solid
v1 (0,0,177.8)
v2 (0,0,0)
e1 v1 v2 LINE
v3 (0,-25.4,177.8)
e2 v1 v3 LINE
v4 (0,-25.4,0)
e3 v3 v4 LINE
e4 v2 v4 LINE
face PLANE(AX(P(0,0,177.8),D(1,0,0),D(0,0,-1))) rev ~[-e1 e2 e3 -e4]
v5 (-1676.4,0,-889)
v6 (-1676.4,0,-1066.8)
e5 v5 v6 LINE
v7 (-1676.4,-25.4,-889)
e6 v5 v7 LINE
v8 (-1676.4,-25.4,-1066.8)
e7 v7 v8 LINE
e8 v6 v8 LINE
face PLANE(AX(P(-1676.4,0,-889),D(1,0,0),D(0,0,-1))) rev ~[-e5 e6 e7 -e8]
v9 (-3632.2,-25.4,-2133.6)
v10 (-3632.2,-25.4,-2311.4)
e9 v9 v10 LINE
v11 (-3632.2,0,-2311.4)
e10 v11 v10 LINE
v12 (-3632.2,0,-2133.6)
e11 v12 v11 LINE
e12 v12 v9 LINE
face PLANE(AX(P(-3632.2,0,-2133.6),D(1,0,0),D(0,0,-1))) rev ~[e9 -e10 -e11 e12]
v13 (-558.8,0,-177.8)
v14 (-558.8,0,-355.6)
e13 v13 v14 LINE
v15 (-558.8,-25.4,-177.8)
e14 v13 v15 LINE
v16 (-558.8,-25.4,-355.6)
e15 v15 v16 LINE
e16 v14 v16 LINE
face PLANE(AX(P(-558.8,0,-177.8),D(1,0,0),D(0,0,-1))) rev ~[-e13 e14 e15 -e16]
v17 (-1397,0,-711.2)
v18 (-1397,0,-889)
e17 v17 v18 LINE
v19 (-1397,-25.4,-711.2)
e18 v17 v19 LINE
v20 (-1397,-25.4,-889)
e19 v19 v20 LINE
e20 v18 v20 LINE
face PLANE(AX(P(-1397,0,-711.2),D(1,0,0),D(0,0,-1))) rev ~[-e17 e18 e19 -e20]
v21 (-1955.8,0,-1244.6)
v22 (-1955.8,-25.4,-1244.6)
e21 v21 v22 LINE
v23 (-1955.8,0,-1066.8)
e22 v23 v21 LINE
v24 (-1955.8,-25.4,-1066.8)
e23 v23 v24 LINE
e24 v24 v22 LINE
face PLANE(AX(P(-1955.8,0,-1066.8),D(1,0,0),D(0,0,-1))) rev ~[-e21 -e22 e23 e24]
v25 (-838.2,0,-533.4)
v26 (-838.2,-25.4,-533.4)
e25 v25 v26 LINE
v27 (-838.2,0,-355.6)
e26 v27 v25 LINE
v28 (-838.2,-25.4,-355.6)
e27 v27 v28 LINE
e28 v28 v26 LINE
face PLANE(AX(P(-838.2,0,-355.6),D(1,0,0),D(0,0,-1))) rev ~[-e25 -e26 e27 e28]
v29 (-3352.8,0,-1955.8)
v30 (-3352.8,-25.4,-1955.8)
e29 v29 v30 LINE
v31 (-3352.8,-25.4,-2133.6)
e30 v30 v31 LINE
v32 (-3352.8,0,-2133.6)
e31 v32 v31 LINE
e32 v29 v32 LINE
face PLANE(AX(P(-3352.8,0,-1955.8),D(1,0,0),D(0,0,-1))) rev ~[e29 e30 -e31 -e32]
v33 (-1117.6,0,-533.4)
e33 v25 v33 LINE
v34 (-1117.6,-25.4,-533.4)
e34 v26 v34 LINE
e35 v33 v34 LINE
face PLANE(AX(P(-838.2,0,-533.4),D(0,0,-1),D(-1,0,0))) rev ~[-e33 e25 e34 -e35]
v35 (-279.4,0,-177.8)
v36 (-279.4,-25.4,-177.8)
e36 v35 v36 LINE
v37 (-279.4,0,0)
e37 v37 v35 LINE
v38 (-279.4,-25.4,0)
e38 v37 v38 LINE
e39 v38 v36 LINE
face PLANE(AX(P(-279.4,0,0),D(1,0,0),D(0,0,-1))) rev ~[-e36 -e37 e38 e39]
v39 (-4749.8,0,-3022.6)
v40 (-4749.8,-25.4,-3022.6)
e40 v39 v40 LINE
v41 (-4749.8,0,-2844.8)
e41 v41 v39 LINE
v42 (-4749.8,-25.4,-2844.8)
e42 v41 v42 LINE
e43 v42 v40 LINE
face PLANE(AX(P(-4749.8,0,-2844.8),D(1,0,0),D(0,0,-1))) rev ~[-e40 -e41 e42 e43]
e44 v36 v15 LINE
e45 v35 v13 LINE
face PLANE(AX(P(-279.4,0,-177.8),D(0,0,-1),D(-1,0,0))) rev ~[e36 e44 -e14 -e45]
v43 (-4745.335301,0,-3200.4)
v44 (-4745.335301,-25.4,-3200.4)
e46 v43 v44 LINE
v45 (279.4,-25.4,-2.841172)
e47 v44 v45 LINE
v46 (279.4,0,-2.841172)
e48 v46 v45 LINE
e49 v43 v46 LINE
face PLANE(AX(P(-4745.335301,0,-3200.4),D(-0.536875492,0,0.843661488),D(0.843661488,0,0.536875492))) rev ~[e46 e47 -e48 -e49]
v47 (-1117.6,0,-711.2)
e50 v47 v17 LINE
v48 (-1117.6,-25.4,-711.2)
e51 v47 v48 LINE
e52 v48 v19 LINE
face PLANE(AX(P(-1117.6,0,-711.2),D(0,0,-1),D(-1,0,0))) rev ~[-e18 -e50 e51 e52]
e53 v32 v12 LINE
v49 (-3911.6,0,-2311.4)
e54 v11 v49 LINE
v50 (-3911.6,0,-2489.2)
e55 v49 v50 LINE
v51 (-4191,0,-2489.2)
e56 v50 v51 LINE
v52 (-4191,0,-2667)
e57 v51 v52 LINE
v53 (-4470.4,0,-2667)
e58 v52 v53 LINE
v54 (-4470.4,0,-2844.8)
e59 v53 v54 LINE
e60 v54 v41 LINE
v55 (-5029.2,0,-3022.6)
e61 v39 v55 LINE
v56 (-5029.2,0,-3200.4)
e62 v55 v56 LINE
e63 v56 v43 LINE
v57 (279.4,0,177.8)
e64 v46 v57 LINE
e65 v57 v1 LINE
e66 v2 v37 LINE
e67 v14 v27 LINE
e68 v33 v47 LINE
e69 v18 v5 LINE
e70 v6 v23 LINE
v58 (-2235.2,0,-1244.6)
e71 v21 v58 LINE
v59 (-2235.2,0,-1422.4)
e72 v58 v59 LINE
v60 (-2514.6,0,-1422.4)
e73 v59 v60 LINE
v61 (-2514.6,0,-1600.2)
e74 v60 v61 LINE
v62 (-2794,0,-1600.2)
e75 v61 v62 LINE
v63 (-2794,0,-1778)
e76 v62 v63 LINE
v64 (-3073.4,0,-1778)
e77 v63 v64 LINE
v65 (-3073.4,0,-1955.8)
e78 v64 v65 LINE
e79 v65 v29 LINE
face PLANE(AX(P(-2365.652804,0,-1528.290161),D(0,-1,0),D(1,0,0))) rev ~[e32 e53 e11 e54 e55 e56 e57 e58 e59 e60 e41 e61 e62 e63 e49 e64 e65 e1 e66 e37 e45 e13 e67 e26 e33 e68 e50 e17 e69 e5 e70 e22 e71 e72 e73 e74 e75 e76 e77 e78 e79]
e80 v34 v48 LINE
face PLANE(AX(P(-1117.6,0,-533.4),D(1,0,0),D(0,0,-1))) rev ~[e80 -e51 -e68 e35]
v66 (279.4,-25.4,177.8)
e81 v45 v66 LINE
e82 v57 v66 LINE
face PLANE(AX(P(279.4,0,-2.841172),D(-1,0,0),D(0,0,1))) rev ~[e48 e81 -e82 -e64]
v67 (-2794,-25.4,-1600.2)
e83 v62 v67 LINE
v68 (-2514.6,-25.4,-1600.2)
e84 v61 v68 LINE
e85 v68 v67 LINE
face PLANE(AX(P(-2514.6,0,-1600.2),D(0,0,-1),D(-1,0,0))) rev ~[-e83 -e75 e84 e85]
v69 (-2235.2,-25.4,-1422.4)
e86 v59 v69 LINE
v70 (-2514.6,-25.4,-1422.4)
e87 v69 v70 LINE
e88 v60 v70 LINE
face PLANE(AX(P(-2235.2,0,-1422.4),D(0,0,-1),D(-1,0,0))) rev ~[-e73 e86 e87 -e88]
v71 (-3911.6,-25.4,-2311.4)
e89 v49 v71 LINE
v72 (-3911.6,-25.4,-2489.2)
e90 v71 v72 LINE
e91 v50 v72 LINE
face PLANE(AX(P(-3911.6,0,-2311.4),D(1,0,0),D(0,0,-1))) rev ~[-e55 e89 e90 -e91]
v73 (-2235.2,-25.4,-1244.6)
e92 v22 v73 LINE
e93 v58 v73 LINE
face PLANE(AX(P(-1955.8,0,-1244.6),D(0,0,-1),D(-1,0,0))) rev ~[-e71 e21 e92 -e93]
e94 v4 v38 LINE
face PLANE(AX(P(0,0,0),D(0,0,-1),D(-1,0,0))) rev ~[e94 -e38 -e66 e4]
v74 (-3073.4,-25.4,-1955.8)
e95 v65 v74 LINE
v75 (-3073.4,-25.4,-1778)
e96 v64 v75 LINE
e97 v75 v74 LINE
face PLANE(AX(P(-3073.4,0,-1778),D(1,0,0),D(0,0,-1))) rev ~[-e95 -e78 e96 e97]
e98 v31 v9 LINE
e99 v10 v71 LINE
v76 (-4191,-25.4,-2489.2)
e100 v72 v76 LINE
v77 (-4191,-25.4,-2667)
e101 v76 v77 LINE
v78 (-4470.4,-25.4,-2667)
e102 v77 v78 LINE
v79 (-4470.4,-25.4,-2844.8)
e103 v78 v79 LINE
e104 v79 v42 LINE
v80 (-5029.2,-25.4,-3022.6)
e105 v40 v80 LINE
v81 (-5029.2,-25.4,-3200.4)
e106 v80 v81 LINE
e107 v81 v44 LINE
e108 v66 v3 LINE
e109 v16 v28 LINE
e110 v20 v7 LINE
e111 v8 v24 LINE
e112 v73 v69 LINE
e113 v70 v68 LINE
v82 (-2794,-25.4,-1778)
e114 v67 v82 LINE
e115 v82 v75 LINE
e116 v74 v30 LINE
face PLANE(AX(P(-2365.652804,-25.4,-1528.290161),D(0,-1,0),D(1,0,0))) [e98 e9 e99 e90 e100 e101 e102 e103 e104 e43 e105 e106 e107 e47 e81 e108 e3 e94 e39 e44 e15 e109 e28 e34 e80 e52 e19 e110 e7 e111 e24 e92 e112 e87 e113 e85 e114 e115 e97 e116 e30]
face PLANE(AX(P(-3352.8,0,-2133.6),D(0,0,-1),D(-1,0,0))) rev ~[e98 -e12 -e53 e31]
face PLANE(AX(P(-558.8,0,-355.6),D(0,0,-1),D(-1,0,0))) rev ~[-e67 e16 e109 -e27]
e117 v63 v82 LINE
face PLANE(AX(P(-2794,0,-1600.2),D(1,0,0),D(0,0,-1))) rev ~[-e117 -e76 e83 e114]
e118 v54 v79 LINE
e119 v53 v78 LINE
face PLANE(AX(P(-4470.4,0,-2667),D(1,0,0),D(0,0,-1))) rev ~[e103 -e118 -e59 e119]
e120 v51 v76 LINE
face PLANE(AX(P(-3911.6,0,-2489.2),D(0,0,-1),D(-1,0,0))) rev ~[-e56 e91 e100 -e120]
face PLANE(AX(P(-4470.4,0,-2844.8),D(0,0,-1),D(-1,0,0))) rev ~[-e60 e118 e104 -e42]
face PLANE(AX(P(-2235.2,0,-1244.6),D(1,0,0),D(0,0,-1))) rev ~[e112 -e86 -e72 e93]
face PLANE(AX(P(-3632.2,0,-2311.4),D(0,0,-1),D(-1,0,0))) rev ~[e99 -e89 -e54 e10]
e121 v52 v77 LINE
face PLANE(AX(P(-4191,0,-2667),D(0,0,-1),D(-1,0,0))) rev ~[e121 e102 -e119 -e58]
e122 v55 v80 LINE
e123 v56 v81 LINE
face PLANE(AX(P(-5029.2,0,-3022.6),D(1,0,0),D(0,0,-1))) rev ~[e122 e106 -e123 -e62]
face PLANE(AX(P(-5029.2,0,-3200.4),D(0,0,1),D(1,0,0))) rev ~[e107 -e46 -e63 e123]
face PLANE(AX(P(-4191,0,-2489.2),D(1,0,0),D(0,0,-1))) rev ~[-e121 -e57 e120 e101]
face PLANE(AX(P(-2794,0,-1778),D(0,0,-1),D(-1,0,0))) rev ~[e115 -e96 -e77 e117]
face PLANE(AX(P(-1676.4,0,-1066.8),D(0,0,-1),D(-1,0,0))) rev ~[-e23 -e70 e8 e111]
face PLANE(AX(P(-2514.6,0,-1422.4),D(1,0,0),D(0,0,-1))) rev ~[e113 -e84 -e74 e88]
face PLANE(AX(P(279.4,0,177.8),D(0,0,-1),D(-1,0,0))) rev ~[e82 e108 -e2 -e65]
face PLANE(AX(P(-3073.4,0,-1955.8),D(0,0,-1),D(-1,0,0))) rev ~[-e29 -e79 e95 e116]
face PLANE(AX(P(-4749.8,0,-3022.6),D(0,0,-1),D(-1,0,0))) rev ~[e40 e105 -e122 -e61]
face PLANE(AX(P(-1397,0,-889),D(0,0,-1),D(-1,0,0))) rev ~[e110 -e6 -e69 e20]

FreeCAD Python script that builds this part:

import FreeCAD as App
import Part
import Sketcher

V = App.Vector
Q = App.Units.Quantity

doc = App.newDocument("Part")
body = doc.addObject("PartDesign::Body", "Body")

# Sketch on XZ plane
sketch1 = body.newObject("Sketcher::SketchObject", "Sketch")
sketch1.AttachmentSupport = (doc.getObject("XZ_Plane"), [""])
sketch1.MapMode = "FlatFace"
sketch1.addGeometry(Part.LineSegment(V(0, 178, 0), V(0, 0, 0)), False)
sketch1.addGeometry(Part.LineSegment(V(0, 0, 0), V(-279, 0, 0)), False)
sketch1.addGeometry(Part.LineSegment(V(-279, 0, 0), V(-279, -178, 0)), False)
sketch1.addGeometry(Part.LineSegment(V(-279, -178, 0), V(-559, -178, 0)), False)
sketch1.addGeometry(Part.LineSegment(V(-559, -178, 0), V(-559, -356, 0)), False)
sketch1.addGeometry(Part.LineSegment(V(-559, -356, 0), V(-838, -356, 0)), False)
sketch1.addGeometry(Part.LineSegment(V(-838, -356, 0), V(-838, -533, 0)), False)
sketch1.addGeometry(Part.LineSegment(V(-838, -533, 0), V(-1118, -533, 0)), False)
sketch1.addGeometry(Part.LineSegment(V(-1118, -533, 0), V(-1118, -711, 0)), False)
sketch1.addGeometry(Part.LineSegment(V(-1118, -711, 0), V(-1397, -711, 0)), False)
sketch1.addGeometry(Part.LineSegment(V(-1397, -711, 0), V(-1397, -889, 0)), False)
sketch1.addGeometry(Part.LineSegment(V(-1397, -889, 0), V(-1676, -889, 0)), False)
sketch1.addGeometry(Part.LineSegment(V(-1676, -889, 0), V(-1676, -1067, 0)), False)
sketch1.addGeometry(Part.LineSegment(V(-1676, -1067, 0), V(-1956, -1067, 0)), False)
sketch1.addGeometry(Part.LineSegment(V(-1956, -1067, 0), V(-1956, -1245, 0)), False)
sketch1.addGeometry(Part.LineSegment(V(-1956, -1245, 0), V(-2235, -1245, 0)), False)
sketch1.addGeometry(Part.LineSegment(V(-2235, -1245, 0), V(-2235, -1422, 0)), False)
sketch1.addGeometry(Part.LineSegment(V(-2235, -1422, 0), V(-2515, -1422, 0)), False)
sketch1.addGeometry(Part.LineSegment(V(-2515, -1422, 0), V(-2515, -1600, 0)), False)
sketch1.addGeometry(Part.LineSegment(V(-2515, -1600, 0), V(-2794, -1600, 0)), False)
sketch1.addGeometry(Part.LineSegment(V(-2794, -1600, 0), V(-2794, -1778, 0)), False)
sketch1.addGeometry(Part.LineSegment(V(-2794, -1778, 0), V(-3073, -1778, 0)), False)
sketch1.addGeometry(Part.LineSegment(V(-3073, -1778, 0), V(-3073, -1956, 0)), False)
sketch1.addGeometry(Part.LineSegment(V(-3073, -1956, 0), V(-3353, -1956, 0)), False)
sketch1.addGeometry(Part.LineSegment(V(-3353, -1956, 0), V(-3353, -2134, 0)), False)
sketch1.addGeometry(Part.LineSegment(V(-3353, -2134, 0), V(-3632, -2134, 0)), False)
sketch1.addGeometry(Part.LineSegment(V(-3632, -2134, 0), V(-3632, -2311, 0)), False)
sketch1.addGeometry(Part.LineSegment(V(-3632, -2311, 0), V(-3912, -2311, 0)), False)
sketch1.addGeometry(Part.LineSegment(V(-3912, -2311, 0), V(-3912, -2489, 0)), False)
sketch1.addGeometry(Part.LineSegment(V(-3912, -2489, 0), V(-4191, -2489, 0)), False)
sketch1.addGeometry(Part.LineSegment(V(-4191, -2489, 0), V(-4191, -2667, 0)), False)
sketch1.addGeometry(Part.LineSegment(V(-4191, -2667, 0), V(-4470, -2667, 0)), False)
sketch1.addGeometry(Part.LineSegment(V(-4470, -2667, 0), V(-4470, -2845, 0)), False)
sketch1.addGeometry(Part.LineSegment(V(-4470, -2845, 0), V(-4750, -2845, 0)), False)
sketch1.addGeometry(Part.LineSegment(V(-4750, -2845, 0), V(-4750, -3023, 0)), False)
sketch1.addGeometry(Part.LineSegment(V(-4750, -3023, 0), V(-5029, -3023, 0)), False)
sketch1.addGeometry(Part.LineSegment(V(-5029, -3023, 0), V(-5029, -3200, 0)), False)
sketch1.addGeometry(Part.LineSegment(V(-5029, -3200, 0), V(-4745, -3200, 0)), False)
sketch1.addGeometry(Part.LineSegment(V(-4745, -3200, 0), V(279, -3, 0)), False)
sketch1.addGeometry(Part.LineSegment(V(279, -3, 0), V(279, 178, 0)), False)
sketch1.addGeometry(Part.LineSegment(V(279, 178, 0), V(0, 178, 0)), False)
sketch1.addConstraint(Sketcher.Constraint("Coincident", 0, 2, 1, 1))
sketch1.addConstraint(Sketcher.Constraint("Coincident", 1, 2, 2, 1))
sketch1.addConstraint(Sketcher.Constraint("Coincident", 2, 2, 3, 1))
sketch1.addConstraint(Sketcher.Constraint("Coincident", 3, 2, 4, 1))
sketch1.addConstraint(Sketcher.Constraint("Coincident", 4, 2, 5, 1))
sketch1.addConstraint(Sketcher.Constraint("Coincident", 5, 2, 6, 1))
sketch1.addConstraint(Sketcher.Constraint("Coincident", 6, 2, 7, 1))
sketch1.addConstraint(Sketcher.Constraint("Coincident", 7, 2, 8, 1))
sketch1.addConstraint(Sketcher.Constraint("Coincident", 8, 2, 9, 1))
sketch1.addConstraint(Sketcher.Constraint("Coincident", 9, 2, 10, 1))
sketch1.addConstraint(Sketcher.Constraint("Coincident", 10, 2, 11, 1))
sketch1.addConstraint(Sketcher.Constraint("Coincident", 11, 2, 12, 1))
sketch1.addConstraint(Sketcher.Constraint("Coincident", 12, 2, 13, 1))
sketch1.addConstraint(Sketcher.Constraint("Coincident", 13, 2, 14, 1))
sketch1.addConstraint(Sketcher.Constraint("Coincident", 14, 2, 15, 1))
sketch1.addConstraint(Sketcher.Constraint("Coincident", 15, 2, 16, 1))
sketch1.addConstraint(Sketcher.Constraint("Coincident", 16, 2, 17, 1))
sketch1.addConstraint(Sketcher.Constraint("Coincident", 17, 2, 18, 1))
sketch1.addConstraint(Sketcher.Constraint("Coincident", 18, 2, 19, 1))
sketch1.addConstraint(Sketcher.Constraint("Coincident", 19, 2, 20, 1))
sketch1.addConstraint(Sketcher.Constraint("Coincident", 20, 2, 21, 1))
sketch1.addConstraint(Sketcher.Constraint("Coincident", 21, 2, 22, 1))
sketch1.addConstraint(Sketcher.Constraint("Coincident", 22, 2, 23, 1))
sketch1.addConstraint(Sketcher.Constraint("Coincident", 23, 2, 24, 1))
sketch1.addConstraint(Sketcher.Constraint("Coincident", 24, 2, 25, 1))
sketch1.addConstraint(Sketcher.Constraint("Coincident", 25, 2, 26, 1))
sketch1.addConstraint(Sketcher.Constraint("Coincident", 26, 2, 27, 1))
sketch1.addConstraint(Sketcher.Constraint("Coincident", 27, 2, 28, 1))
sketch1.addConstraint(Sketcher.Constraint("Coincident", 28, 2, 29, 1))
sketch1.addConstraint(Sketcher.Constraint("Coincident", 29, 2, 30, 1))
sketch1.addConstraint(Sketcher.Constraint("Coincident", 30, 2, 31, 1))
sketch1.addConstraint(Sketcher.Constraint("Coincident", 31, 2, 32, 1))
sketch1.addConstraint(Sketcher.Constraint("Coincident", 32, 2, 33, 1))
sketch1.addConstraint(Sketcher.Constraint("Coincident", 33, 2, 34, 1))
sketch1.addConstraint(Sketcher.Constraint("Coincident", 34, 2, 35, 1))
sketch1.addConstraint(Sketcher.Constraint("Coincident", 35, 2, 36, 1))
sketch1.addConstraint(Sketcher.Constraint("Coincident", 36, 2, 37, 1))
sketch1.addConstraint(Sketcher.Constraint("Coincident", 37, 2, 38, 1))
sketch1.addConstraint(Sketcher.Constraint("Coincident", 38, 2, 39, 1))
sketch1.addConstraint(Sketcher.Constraint("Coincident", 39, 2, 40, 1))
sketch1.addConstraint(Sketcher.Constraint("Coincident", 40, 2, 0, 1))
sketch1.addConstraint(Sketcher.Constraint("Vertical", 0))
sketch1.addConstraint(Sketcher.Constraint("Horizontal", 1))
sketch1.addConstraint(Sketcher.Constraint("Vertical", 2))
sketch1.addConstraint(Sketcher.Constraint("Horizontal", 3))
sketch1.addConstraint(Sketcher.Constraint("Vertical", 4))
sketch1.addConstraint(Sketcher.Constraint("Horizontal", 5))
sketch1.addConstraint(Sketcher.Constraint("Vertical", 6))
sketch1.addConstraint(Sketcher.Constraint("Horizontal", 7))
sketch1.addConstraint(Sketcher.Constraint("Vertical", 8))
sketch1.addConstraint(Sketcher.Constraint("Horizontal", 9))
sketch1.addConstraint(Sketcher.Constraint("Vertical", 10))
sketch1.addConstraint(Sketcher.Constraint("Horizontal", 11))
sketch1.addConstraint(Sketcher.Constraint("Vertical", 12))
sketch1.addConstraint(Sketcher.Constraint("Horizontal", 13))
sketch1.addConstraint(Sketcher.Constraint("Vertical", 14))
sketch1.addConstraint(Sketcher.Constraint("Horizontal", 15))
sketch1.addConstraint(Sketcher.Constraint("Vertical", 16))
sketch1.addConstraint(Sketcher.Constraint("Horizontal", 17))
sketch1.addConstraint(Sketcher.Constraint("Vertical", 18))
sketch1.addConstraint(Sketcher.Constraint("Horizontal", 19))
sketch1.addConstraint(Sketcher.Constraint("Vertical", 20))
sketch1.addConstraint(Sketcher.Constraint("Horizontal", 21))
sketch1.addConstraint(Sketcher.Constraint("Vertical", 22))
sketch1.addConstraint(Sketcher.Constraint("Horizontal", 23))
sketch1.addConstraint(Sketcher.Constraint("Vertical", 24))
sketch1.addConstraint(Sketcher.Constraint("Horizontal", 25))
sketch1.addConstraint(Sketcher.Constraint("Vertical", 26))
sketch1.addConstraint(Sketcher.Constraint("Horizontal", 27))
sketch1.addConstraint(Sketcher.Constraint("Vertical", 28))
sketch1.addConstraint(Sketcher.Constraint("Horizontal", 29))
sketch1.addConstraint(Sketcher.Constraint("Vertical", 30))
sketch1.addConstraint(Sketcher.Constraint("Horizontal", 31))
sketch1.addConstraint(Sketcher.Constraint("Vertical", 32))
sketch1.addConstraint(Sketcher.Constraint("Horizontal", 33))
sketch1.addConstraint(Sketcher.Constraint("Vertical", 34))
sketch1.addConstraint(Sketcher.Constraint("Horizontal", 35))
sketch1.addConstraint(Sketcher.Constraint("Vertical", 36))
sketch1.addConstraint(Sketcher.Constraint("Horizontal", 37))
sketch1.addConstraint(Sketcher.Constraint("Vertical", 39))
sketch1.addConstraint(Sketcher.Constraint("Horizontal", 40))
sketch1.addConstraint(Sketcher.Constraint("Coincident", 0, 2, -1, 1))
sketch1.addConstraint(Sketcher.Constraint("Symmetric", 2, 2, 39, 2, -1, 1))
sketch1.addConstraint(Sketcher.Constraint("Equal", 1, 3))
sketch1.addConstraint(Sketcher.Constraint("Equal", 3, 5))
sketch1.addConstraint(Sketcher.Constraint("Equal", 5, 7))
sketch1.addConstraint(Sketcher.Constraint("Equal", 7, 9))
sketch1.addConstraint(Sketcher.Constraint("Equal", 9, 11))
sketch1.addConstraint(Sketcher.Constraint("Equal", 11, 13))
sketch1.addConstraint(Sketcher.Constraint("Equal", 13, 15))
sketch1.addConstraint(Sketcher.Constraint("Equal", 15, 17))
sketch1.addConstraint(Sketcher.Constraint("Equal", 17, 19))
sketch1.addConstraint(Sketcher.Constraint("Equal", 19, 21))
sketch1.addConstraint(Sketcher.Constraint("Equal", 21, 23))
sketch1.addConstraint(Sketcher.Constraint("Equal", 23, 25))
sketch1.addConstraint(Sketcher.Constraint("Equal", 25, 27))
sketch1.addConstraint(Sketcher.Constraint("Equal", 27, 29))
sketch1.addConstraint(Sketcher.Constraint("Equal", 29, 31))
sketch1.addConstraint(Sketcher.Constraint("Equal", 31, 33))
sketch1.addConstraint(Sketcher.Constraint("Equal", 33, 35))
sketch1.addConstraint(Sketcher.Constraint("Equal", 2, 4))
sketch1.addConstraint(Sketcher.Constraint("Equal", 4, 6))
sketch1.addConstraint(Sketcher.Constraint("Equal", 6, 8))
sketch1.addConstraint(Sketcher.Constraint("Equal", 8, 10))
sketch1.addConstraint(Sketcher.Constraint("Equal", 10, 12))
sketch1.addConstraint(Sketcher.Constraint("Equal", 12, 14))
sketch1.addConstraint(Sketcher.Constraint("Equal", 14, 16))
sketch1.addConstraint(Sketcher.Constraint("Equal", 16, 18))
sketch1.addConstraint(Sketcher.Constraint("Equal", 18, 20))
sketch1.addConstraint(Sketcher.Constraint("Equal", 20, 22))
sketch1.addConstraint(Sketcher.Constraint("Equal", 22, 24))
sketch1.addConstraint(Sketcher.Constraint("Equal", 24, 26))
sketch1.addConstraint(Sketcher.Constraint("Equal", 26, 28))
sketch1.addConstraint(Sketcher.Constraint("Equal", 28, 30))
sketch1.addConstraint(Sketcher.Constraint("Equal", 30, 32))
sketch1.addConstraint(Sketcher.Constraint("Equal", 32, 34))
sketch1.addConstraint(Sketcher.Constraint("Equal", 34, 36))
sketch1.addConstraint(Sketcher.Constraint("DistanceX", 1, 2, 1, 1, Q("11 in")))
sketch1.addConstraint(Sketcher.Constraint("DistanceY", 0, 2, 0, 1, Q("7 in")))
sketch1.addConstraint(Sketcher.Constraint("DistanceX", 37, 1, 37, 2, Q("283.864699 mm")))
sketch1.addConstraint(Sketcher.Constraint("Distance", 38, Q("5955.866629 mm")))
pad1 = body.newObject("PartDesign::Pad", "Pad")
pad1.Profile = sketch1
pad1.Length = Q("1 in")

doc.recompute()
